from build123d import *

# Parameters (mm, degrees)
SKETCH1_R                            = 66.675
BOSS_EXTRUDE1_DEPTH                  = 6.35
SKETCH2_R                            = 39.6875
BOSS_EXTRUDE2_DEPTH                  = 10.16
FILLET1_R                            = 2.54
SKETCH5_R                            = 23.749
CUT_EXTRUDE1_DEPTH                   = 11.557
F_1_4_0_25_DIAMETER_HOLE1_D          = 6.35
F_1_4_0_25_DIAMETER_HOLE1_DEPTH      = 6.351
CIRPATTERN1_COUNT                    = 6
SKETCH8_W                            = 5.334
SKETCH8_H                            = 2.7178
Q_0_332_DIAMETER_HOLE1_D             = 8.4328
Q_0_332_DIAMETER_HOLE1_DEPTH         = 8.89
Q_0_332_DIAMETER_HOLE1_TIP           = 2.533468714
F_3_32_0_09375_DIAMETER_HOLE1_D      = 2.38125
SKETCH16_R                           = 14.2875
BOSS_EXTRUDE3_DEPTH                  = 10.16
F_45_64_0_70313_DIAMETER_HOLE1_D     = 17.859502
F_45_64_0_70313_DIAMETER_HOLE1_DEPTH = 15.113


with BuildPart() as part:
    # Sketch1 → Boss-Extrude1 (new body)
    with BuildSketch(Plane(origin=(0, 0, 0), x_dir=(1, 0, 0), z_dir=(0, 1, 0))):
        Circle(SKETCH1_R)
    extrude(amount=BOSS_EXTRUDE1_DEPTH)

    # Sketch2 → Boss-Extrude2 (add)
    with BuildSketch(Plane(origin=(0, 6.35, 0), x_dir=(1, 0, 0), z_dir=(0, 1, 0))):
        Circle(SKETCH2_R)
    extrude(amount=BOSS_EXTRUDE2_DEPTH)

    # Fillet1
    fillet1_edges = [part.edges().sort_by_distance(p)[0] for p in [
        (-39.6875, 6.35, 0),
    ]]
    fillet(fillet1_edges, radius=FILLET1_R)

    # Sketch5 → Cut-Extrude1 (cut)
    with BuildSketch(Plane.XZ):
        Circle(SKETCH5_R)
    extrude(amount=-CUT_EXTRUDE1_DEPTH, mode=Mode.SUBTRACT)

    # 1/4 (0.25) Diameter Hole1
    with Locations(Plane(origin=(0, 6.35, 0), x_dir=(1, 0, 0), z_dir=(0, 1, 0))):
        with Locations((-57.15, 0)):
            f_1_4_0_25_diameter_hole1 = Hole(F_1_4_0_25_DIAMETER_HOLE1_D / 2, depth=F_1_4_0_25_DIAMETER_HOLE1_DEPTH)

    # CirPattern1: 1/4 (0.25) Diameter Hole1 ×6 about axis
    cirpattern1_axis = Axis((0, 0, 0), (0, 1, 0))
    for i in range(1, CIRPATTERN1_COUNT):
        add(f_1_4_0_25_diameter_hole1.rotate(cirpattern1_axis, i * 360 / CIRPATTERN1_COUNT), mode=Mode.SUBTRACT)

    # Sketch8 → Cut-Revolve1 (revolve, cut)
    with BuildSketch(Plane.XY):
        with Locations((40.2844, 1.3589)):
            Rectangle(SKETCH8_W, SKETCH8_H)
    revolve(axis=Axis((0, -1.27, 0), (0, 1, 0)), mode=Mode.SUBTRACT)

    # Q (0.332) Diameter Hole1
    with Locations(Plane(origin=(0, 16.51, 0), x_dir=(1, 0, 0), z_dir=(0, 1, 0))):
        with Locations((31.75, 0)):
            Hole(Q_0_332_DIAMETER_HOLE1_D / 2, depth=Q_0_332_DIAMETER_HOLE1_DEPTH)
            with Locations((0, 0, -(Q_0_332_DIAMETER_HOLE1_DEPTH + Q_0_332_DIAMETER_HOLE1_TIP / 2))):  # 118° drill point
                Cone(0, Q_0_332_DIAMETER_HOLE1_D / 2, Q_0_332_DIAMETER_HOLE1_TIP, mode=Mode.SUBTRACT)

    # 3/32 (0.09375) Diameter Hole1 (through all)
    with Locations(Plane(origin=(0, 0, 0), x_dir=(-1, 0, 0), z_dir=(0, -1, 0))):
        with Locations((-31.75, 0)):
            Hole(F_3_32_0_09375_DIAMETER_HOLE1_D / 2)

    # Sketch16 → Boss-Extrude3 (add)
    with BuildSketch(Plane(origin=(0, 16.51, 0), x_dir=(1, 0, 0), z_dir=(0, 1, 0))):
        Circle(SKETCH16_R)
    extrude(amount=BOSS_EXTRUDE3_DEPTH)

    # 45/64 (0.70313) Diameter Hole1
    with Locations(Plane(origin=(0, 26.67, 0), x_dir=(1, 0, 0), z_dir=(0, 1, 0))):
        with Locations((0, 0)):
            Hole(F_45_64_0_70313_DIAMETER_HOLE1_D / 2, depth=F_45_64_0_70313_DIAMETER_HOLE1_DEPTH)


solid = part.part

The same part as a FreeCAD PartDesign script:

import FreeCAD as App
import Part
import Sketcher

V = App.Vector
Q = App.Units.Quantity


def edges_at(feature, points):
    """Names of the edges that pass closest to the given points."""
    edges = feature.Shape.Edges
    near = lambda p: min(range(len(edges)), key=lambda i: edges[i].distToShape(Part.Vertex(*p))[0])
    return sorted({f"Edge{near(p) + 1}" for p in points})

doc = App.newDocument("Part")
body = doc.addObject("PartDesign::Body", "Body")

# Sketch on XZ plane
sketch1 = doc.addObject("Sketcher::SketchObject", "Sketch")
body.addObject(sketch1)
sketch1.AttachmentSupport = (doc.XZ_Plane, [""])
sketch1.MapMode = "FlatFace"
sketch1.addGeometry(Part.Circle(V(0, 0, 0), V(0, 0, 1), 67), False)
sketch1.addConstraint([
    Sketcher.Constraint("Coincident", 0, 3, -1, 1),
    Sketcher.Constraint("Diameter", 0, Q("5.25 in")),
])
pad1 = doc.addObject("PartDesign::Pad", "Pad")
body.addObject(pad1)
pad1.Profile = sketch1
pad1.Length = Q("0.25 in")
pad1.Reversed = True

# Sketch on XZ plane
sketch2 = doc.addObject("Sketcher::SketchObject", "Sketch001")
body.addObject(sketch2)
sketch2.AttachmentSupport = (doc.XZ_Plane, [""])
sketch2.MapMode = "FlatFace"
sketch2.AttachmentOffset = App.Placement(V(0, 0, -0.25 * 25.4), App.Rotation())
sketch2.addGeometry(Part.Circle(V(0, 0, 0), V(0, 0, 1), 40), False)
sketch2.addConstraint([
    Sketcher.Constraint("Coincident", 0, 3, -1, 1),
    Sketcher.Constraint("Diameter", 0, Q("3.125 in")),
])
pad2 = doc.addObject("PartDesign::Pad", "Pad001")
body.addObject(pad2)
pad2.Profile = sketch2
pad2.Length = Q("0.4 in")
pad2.Reversed = True
doc.recompute()

fillet = doc.addObject("PartDesign::Fillet", "Fillet")
body.addObject(fillet)
fillet.Base = (pad2, edges_at(pad2, [(-39.688, 6.35, 0)]))
fillet.Radius = Q("0.1 in")

# Sketch on XZ plane
sketch3 = doc.addObject("Sketcher::SketchObject", "Sketch002")
body.addObject(sketch3)
sketch3.AttachmentSupport = (doc.XZ_Plane, [""])
sketch3.MapMode = "FlatFace"
sketch3.addGeometry(Part.Circle(V(0, 0, 0), V(0, 0, 1), 24), False)
sketch3.addConstraint([
    Sketcher.Constraint("Coincident", 0, 3, -1, 1),
    Sketcher.Constraint("Diameter", 0, Q("1.87 in")),
])
pocket1 = doc.addObject("PartDesign::Pocket", "Pocket")
body.addObject(pocket1)
pocket1.Profile = sketch3
pocket1.Length = Q("0.455 in")

# Sketch on XZ plane
sketch4 = doc.addObject("Sketcher::SketchObject", "Sketch003")
body.addObject(sketch4)
sketch4.AttachmentSupport = (doc.XZ_Plane, [""])
sketch4.MapMode = "FlatFace"
sketch4.AttachmentOffset = App.Placement(V(0, 0, -0.25 * 25.4), App.Rotation())
sketch4.addGeometry(Part.Circle(V(-57.1, 0, 0), V(0, 0, 1), 3.2), False)
sketch4.addConstraint([
    Sketcher.Constraint("PointOnObject", 0, 3, -1),
    Sketcher.Constraint("Diameter", 0, Q("0.25 in")),
    Sketcher.Constraint("DistanceX", 0, 3, -1, 1, Q("2.25 in")),
])
doc.recompute()
hole = doc.addObject("PartDesign::Hole", "Hole")
body.addObject(hole)
hole.Profile = sketch4
hole.ThreadType = "None"
hole.Diameter = Q("0.25 in")
hole.DepthType = "Dimension"
hole.Depth = 6.351
hole.DrillPoint = "Flat"
hole.Reversed = True
doc.recompute()

polarpattern = doc.addObject("PartDesign::PolarPattern", "PolarPattern")
body.addObject(polarpattern)
polarpattern.Originals = [hole]
polarpattern.Axis = (doc.Y_Axis, [""])
polarpattern.Angle = 360
polarpattern.Occurrences = 6
body.Tip = polarpattern

# Sketch on XY plane
sketch5 = doc.addObject("Sketcher::SketchObject", "Sketch004")
body.addObject(sketch5)
sketch5.AttachmentSupport = (doc.XY_Plane, [""])
sketch5.MapMode = "FlatFace"
sketch5.addGeometry([
    Part.LineSegment(V(37.6, 2.7, 0), V(37.6, 0, 0)),
    Part.LineSegment(V(37.6, 0, 0), V(43, 0, 0)),
    Part.LineSegment(V(43, 0, 0), V(43, 2.7, 0)),
    Part.LineSegment(V(43, 2.7, 0), V(37.6, 2.7, 0)),
], False)
sketch5.addConstraint([
    Sketcher.Constraint("Coincident", 0, 2, 1, 1),
    Sketcher.Constraint("Coincident", 1, 2, 2, 1),
    Sketcher.Constraint("Coincident", 2, 2, 3, 1),
    Sketcher.Constraint("Coincident", 3, 2, 0, 1),
    Sketcher.Constraint("Vertical", 0),
    Sketcher.Constraint("Horizontal", 1),
    Sketcher.Constraint("Vertical", 2),
    Sketcher.Constraint("Horizontal", 3),
    Sketcher.Constraint("PointOnObject", 0, 2, -1),
    Sketcher.Constraint("DistanceX", 1, 1, 1, 2, Q("0.21 in")),
    Sketcher.Constraint("DistanceY", 0, 2, 0, 1, Q("0.107 in")),
    Sketcher.Constraint("DistanceX", -1, 1, 0, 2, Q("1.481 in")),
])
groove = doc.addObject("PartDesign::Groove", "Groove")
body.addObject(groove)
groove.Profile = sketch5
groove.ReferenceAxis = (sketch5, ["V_Axis"])
groove.Angle = 360

# Sketch on XZ plane
sketch6 = doc.addObject("Sketcher::SketchObject", "Sketch005")
body.addObject(sketch6)
sketch6.AttachmentSupport = (doc.XZ_Plane, [""])
sketch6.MapMode = "FlatFace"
sketch6.AttachmentOffset = App.Placement(V(0, 0, -0.65 * 25.4), App.Rotation())
sketch6.addGeometry(Part.Circle(V(31.8, 0, 0), V(0, 0, 1), 4.2), False)
sketch6.addConstraint([
    Sketcher.Constraint("PointOnObject", 0, 3, -1),
    Sketcher.Constraint("Diameter", 0, Q("0.332 in")),
    Sketcher.Constraint("DistanceX", -1, 1, 0, 3, Q("1.25 in")),
])
doc.recompute()
hole2 = doc.addObject("PartDesign::Hole", "Hole001")
body.addObject(hole2)
hole2.Profile = sketch6
hole2.ThreadType = "None"
hole2.Diameter = Q("0.332 in")
hole2.DepthType = "Dimension"
hole2.Depth = Q("0.35 in")
hole2.DrillPoint = "Angled"
hole2.DrillPointAngle = 118
hole2.Reversed = True

# Sketch on XZ plane
sketch7 = doc.addObject("Sketcher::SketchObject", "Sketch006")
body.addObject(sketch7)
sketch7.AttachmentSupport = (doc.XZ_Plane, [""])
sketch7.MapMode = "FlatFace"
sketch7.addGeometry(Part.Circle(V(31.8, 0, 0), V(0, 0, 1), 1.2), False)
sketch7.addConstraint([
    Sketcher.Constraint("PointOnObject", 0, 3, -1),
    Sketcher.Constraint("Diameter", 0, Q("0.09375 in")),
    Sketcher.Constraint("DistanceX", -1, 1, 0, 3, Q("1.25 in")),
])
doc.recompute()
hole3 = doc.addObject("PartDesign::Hole", "Hole002")
body.addObject(hole3)
hole3.Profile = sketch7
hole3.ThreadType = "None"
hole3.Diameter = Q("0.09375 in")
hole3.DepthType = "ThroughAll"

# Sketch on XZ plane
sketch8 = doc.addObject("Sketcher::SketchObject", "Sketch007")
body.addObject(sketch8)
sketch8.AttachmentSupport = (doc.XZ_Plane, [""])
sketch8.MapMode = "FlatFace"
sketch8.AttachmentOffset = App.Placement(V(0, 0, -0.65 * 25.4), App.Rotation())
sketch8.addGeometry(Part.Circle(V(0, 0, 0), V(0, 0, 1), 14), False)
sketch8.addConstraint([
    Sketcher.Constraint("Coincident", 0, 3, -1, 1),
    Sketcher.Constraint("Diameter", 0, Q("1.125 in")),
])
pad3 = doc.addObject("PartDesign::Pad", "Pad002")
body.addObject(pad3)
pad3.Profile = sketch8
pad3.Length = Q("0.4 in")
pad3.Reversed = True

# Sketch on XZ plane
sketch9 = doc.addObject("Sketcher::SketchObject", "Sketch008")
body.addObject(sketch9)
sketch9.AttachmentSupport = (doc.XZ_Plane, [""])
sketch9.MapMode = "FlatFace"
sketch9.AttachmentOffset = App.Placement(V(0, 0, -1.05 * 25.4), App.Rotation())
sketch9.addGeometry(Part.Circle(V(0, 0, 0), V(0, 0, 1), 9), False)
sketch9.addConstraint([
    Sketcher.Constraint("Coincident", 0, 3, -1, 1),
    Sketcher.Constraint("Diameter", 0, 17.859502),
])
doc.recompute()
hole4 = doc.addObject("PartDesign::Hole", "Hole003")
body.addObject(hole4)
hole4.Profile = sketch9
hole4.ThreadType = "None"
hole4.Diameter = 17.859502
hole4.DepthType = "Dimension"
hole4.Depth = Q("0.595 in")
hole4.DrillPoint = "Flat"
hole4.Reversed = True

doc.recompute()
